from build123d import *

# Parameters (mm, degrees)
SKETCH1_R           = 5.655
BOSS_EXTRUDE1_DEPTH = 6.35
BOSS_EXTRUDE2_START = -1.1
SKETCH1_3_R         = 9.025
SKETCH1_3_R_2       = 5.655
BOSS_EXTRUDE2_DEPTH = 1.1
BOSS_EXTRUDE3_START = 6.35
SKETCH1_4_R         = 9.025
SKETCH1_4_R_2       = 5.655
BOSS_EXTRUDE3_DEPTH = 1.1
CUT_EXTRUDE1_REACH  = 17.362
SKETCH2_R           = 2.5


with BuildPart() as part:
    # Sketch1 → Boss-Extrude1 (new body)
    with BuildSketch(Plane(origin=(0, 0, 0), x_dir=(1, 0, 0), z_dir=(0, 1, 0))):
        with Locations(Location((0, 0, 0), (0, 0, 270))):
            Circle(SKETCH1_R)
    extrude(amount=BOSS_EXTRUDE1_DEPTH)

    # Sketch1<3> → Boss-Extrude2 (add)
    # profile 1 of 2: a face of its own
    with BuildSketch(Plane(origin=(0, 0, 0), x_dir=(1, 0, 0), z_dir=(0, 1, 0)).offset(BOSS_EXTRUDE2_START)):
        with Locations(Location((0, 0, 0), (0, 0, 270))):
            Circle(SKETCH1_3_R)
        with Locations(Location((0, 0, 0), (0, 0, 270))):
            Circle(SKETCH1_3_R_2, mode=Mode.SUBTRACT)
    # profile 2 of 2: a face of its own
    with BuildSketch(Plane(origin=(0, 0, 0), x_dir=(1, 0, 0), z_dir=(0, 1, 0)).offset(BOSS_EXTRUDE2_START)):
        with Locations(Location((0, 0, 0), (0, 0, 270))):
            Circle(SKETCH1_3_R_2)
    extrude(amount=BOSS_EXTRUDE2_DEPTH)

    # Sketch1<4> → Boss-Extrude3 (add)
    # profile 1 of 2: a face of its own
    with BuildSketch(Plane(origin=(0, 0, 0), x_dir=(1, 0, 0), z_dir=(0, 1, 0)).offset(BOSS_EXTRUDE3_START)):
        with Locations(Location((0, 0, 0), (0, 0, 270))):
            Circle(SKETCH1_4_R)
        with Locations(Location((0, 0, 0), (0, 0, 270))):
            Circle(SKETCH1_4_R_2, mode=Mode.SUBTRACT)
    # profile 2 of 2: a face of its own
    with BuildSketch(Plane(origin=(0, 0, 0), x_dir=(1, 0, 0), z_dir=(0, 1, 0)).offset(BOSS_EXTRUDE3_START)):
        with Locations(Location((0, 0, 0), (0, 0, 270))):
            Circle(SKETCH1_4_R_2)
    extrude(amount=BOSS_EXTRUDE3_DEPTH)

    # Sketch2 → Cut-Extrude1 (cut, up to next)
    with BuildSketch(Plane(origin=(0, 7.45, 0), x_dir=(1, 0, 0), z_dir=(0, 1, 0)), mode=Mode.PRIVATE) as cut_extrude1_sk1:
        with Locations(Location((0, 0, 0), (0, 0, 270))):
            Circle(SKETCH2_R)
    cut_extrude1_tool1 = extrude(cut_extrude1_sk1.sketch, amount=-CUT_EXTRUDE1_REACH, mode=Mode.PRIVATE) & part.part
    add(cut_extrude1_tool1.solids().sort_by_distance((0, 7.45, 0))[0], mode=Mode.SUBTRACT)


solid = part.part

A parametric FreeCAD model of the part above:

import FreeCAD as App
import Part
import Sketcher

doc = App.newDocument("Part")
body = doc.addObject("PartDesign::Body", "Body")

# Sketch on XZ plane
sketch1 = doc.addObject("Sketcher::SketchObject", "Sketch")
body.addObject(sketch1)
sketch1.AttachmentSupport = (doc.XZ_Plane, [""])
sketch1.MapMode = "FlatFace"
sketch1.addGeometry(Part.Circle(App.Vector(0, 0, 0), App.Vector(0, 0, 1), 6), False)
sketch1.addConstraint(Sketcher.Constraint("Coincident", 0, 3, -1, 1))
sketch1.addConstraint(Sketcher.Constraint("Diameter", 0, 11.31))
pad1 = doc.addObject("PartDesign::Pad", "Pad")
body.addObject(pad1)
pad1.Profile = sketch1
pad1.Length = 6.35
pad1.Reversed = True

# Sketch on XZ plane
sketch2 = doc.addObject("Sketcher::SketchObject", "Sketch001")
body.addObject(sketch2)
sketch2.AttachmentSupport = (doc.XZ_Plane, [""])
sketch2.MapMode = "FlatFace"
sketch2.AttachmentOffset = App.Placement(App.Vector(0, 0, 1.1), App.Rotation())
sketch2.addGeometry(Part.Circle(App.Vector(0, 0, 0), App.Vector(0, 0, 1), 9), False)
sketch2.addConstraint(Sketcher.Constraint("Coincident", 0, 3, -1, 1))
sketch2.addConstraint(Sketcher.Constraint("Diameter", 0, 18.05))
pad2 = doc.addObject("PartDesign::Pad", "Pad001")
body.addObject(pad2)
pad2.Profile = sketch2
pad2.Length = 1.1
pad2.Reversed = True

# Sketch on XZ plane
sketch3 = doc.addObject("Sketcher::SketchObject", "Sketch002")
body.addObject(sketch3)
sketch3.AttachmentSupport = (doc.XZ_Plane, [""])
sketch3.MapMode = "FlatFace"
sketch3.AttachmentOffset = App.Placement(App.Vector(0, 0, -6.35), App.Rotation())
sketch3.addGeometry(Part.Circle(App.Vector(0, 0, 0), App.Vector(0, 0, 1), 9), False)
sketch3.addConstraint(Sketcher.Constraint("Coincident", 0, 3, -1, 1))
sketch3.addConstraint(Sketcher.Constraint("Diameter", 0, 18.05))
pad3 = doc.addObject("PartDesign::Pad", "Pad002")
body.addObject(pad3)
pad3.Profile = sketch3
pad3.Length = 1.1
pad3.Reversed = True

# Sketch on XZ plane
sketch4 = doc.addObject("Sketcher::SketchObject", "Sketch003")
body.addObject(sketch4)
sketch4.AttachmentSupport = (doc.XZ_Plane, [""])
sketch4.MapMode = "FlatFace"
sketch4.AttachmentOffset = App.Placement(App.Vector(0, 0, -7.45), App.Rotation())
sketch4.addGeometry(Part.Circle(App.Vector(0, 0, 0), App.Vector(0, 0, 1), 2.5), False)
sketch4.addConstraint(Sketcher.Constraint("Coincident", 0, 3, -1, 1))
sketch4.addConstraint(Sketcher.Constraint("Diameter", 0, 5.0))
pocket1 = doc.addObject("PartDesign::Pocket", "Pocket")
body.addObject(pocket1)
pocket1.Profile = sketch4
pocket1.Type = "UpToFirst"
pocket1.Reversed = True

doc.recompute()
